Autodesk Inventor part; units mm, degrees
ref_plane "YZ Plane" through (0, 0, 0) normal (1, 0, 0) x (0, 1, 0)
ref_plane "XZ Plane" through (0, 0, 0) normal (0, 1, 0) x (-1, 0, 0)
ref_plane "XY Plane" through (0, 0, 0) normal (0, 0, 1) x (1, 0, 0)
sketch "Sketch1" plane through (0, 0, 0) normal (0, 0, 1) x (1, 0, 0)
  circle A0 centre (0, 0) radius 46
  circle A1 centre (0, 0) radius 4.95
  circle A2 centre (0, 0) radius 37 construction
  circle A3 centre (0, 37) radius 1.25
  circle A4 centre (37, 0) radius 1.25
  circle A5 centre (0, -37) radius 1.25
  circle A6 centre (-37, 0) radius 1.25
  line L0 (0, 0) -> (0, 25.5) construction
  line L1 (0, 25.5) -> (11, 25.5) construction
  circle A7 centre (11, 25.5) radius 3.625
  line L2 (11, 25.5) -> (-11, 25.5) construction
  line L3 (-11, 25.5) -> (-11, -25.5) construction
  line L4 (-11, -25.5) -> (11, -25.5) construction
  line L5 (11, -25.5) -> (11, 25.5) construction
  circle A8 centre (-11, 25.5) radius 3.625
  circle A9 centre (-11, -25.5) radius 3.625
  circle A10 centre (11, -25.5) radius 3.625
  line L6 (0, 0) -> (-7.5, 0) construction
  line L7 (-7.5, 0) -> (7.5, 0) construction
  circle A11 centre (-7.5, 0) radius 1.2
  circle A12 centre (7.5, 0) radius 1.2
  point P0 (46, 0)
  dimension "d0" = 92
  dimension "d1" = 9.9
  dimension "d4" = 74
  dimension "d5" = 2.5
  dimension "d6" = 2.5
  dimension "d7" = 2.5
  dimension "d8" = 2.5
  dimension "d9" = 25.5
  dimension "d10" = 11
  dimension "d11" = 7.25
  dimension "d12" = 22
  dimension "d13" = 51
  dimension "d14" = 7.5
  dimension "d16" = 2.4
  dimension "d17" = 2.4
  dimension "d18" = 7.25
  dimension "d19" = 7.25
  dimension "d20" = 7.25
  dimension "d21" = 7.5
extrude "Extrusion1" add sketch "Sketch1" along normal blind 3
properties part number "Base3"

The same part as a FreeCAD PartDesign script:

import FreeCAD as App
import Part
import Sketcher
from FreeCAD import Vector

doc = App.newDocument("Part")
body = doc.addObject("PartDesign::Body", "Body")

# Sketch on XY plane
sketch1 = doc.addObject("Sketcher::SketchObject", "Sketch")
body.addObject(sketch1)
sketch1.AttachmentSupport = (doc.XY_Plane, [""])
sketch1.MapMode = "FlatFace"
sketch1.addGeometry(Part.Circle(Vector(0, 0, 0), Vector(0, 0, 1), 46), False)
sketch1.addGeometry(Part.Circle(Vector(-11, -25.5, 0), Vector(0, 0, 1), 3.625), False)
sketch1.addGeometry(Part.Circle(Vector(0, -37, 0), Vector(0, 0, 1), 1.25), False)
sketch1.addGeometry(Part.Circle(Vector(11, -25.5, 0), Vector(0, 0, 1), 3.625), False)
sketch1.addGeometry(Part.Circle(Vector(-37, 0, 0), Vector(0, 0, 1), 1.25), False)
sketch1.addGeometry(Part.Circle(Vector(-7.5, 0, 0), Vector(0, 0, 1), 1.2), False)
sketch1.addGeometry(Part.Circle(Vector(-11, 25.5, 0), Vector(0, 0, 1), 3.625), False)
sketch1.addGeometry(Part.Circle(Vector(0, 0, 0), Vector(0, 0, 1), 4.95), False)
sketch1.addGeometry(Part.Circle(Vector(7.5, 0, 0), Vector(0, 0, 1), 1.2), False)
sketch1.addGeometry(Part.Circle(Vector(37, 0, 0), Vector(0, 0, 1), 1.25), False)
sketch1.addGeometry(Part.Circle(Vector(11, 25.5, 0), Vector(0, 0, 1), 3.625), False)
sketch1.addGeometry(Part.Circle(Vector(0, 37, 0), Vector(0, 0, 1), 1.25), False)
sketch1.addConstraint(Sketcher.Constraint("Coincident", 0, 3, -1, 1))
sketch1.addConstraint(Sketcher.Constraint("Coincident", 7, 3, -1, 1))
sketch1.addConstraint(Sketcher.Constraint("Equal", 1, 3))
sketch1.addConstraint(Sketcher.Constraint("Equal", 2, 4))
sketch1.addConstraint(Sketcher.Constraint("Equal", 3, 6))
sketch1.addConstraint(Sketcher.Constraint("Equal", 5, 8))
sketch1.addConstraint(Sketcher.Constraint("Equal", 4, 9))
sketch1.addConstraint(Sketcher.Constraint("Equal", 6, 10))
sketch1.addConstraint(Sketcher.Constraint("Equal", 9, 11))
sketch1.addConstraint(Sketcher.Constraint("Symmetric", 3, 3, 6, 3, -1, 1))
sketch1.addConstraint(Sketcher.Constraint("Symmetric", 5, 3, 8, 3, -1, 1))
sketch1.addConstraint(Sketcher.Constraint("Symmetric", 4, 3, 9, 3, -1, 1))
sketch1.addConstraint(Sketcher.Constraint("Symmetric", 1, 3, 10, 3, -1, 1))
sketch1.addConstraint(Sketcher.Constraint("Symmetric", 2, 3, 11, 3, -1, 1))
sketch1.addConstraint(Sketcher.Constraint("Symmetric", 1, 3, 3, 3, -2))
sketch1.addConstraint(Sketcher.Constraint("PointOnObject", 2, 3, -2))
sketch1.addConstraint(Sketcher.Constraint("PointOnObject", 4, 3, -1))
sketch1.addConstraint(Sketcher.Constraint("PointOnObject", 5, 3, -1))
sketch1.addConstraint(Sketcher.Constraint("Diameter", 0, 92.0))
sketch1.addConstraint(Sketcher.Constraint("Diameter", 2, 2.5))
sketch1.addConstraint(Sketcher.Constraint("Diameter", 5, 2.4))
sketch1.addConstraint(Sketcher.Constraint("Diameter", 7, 9.9))
sketch1.addConstraint(Sketcher.Constraint("Diameter", 1, 7.25))
sketch1.addConstraint(Sketcher.Constraint("DistanceX", 1, 3, -1, 1, 11.0))
sketch1.addConstraint(Sketcher.Constraint("DistanceY", 1, 3, 6, 3, 51.0))
sketch1.addConstraint(Sketcher.Constraint("DistanceX", 5, 3, -1, 1, 7.5))
sketch1.addConstraint(Sketcher.Constraint("DistanceY", 2, 3, -1, 1, 37.0))
sketch1.addConstraint(Sketcher.Constraint("DistanceX", 4, 3, -1, 1, 37.0))
pad1 = doc.addObject("PartDesign::Pad", "Pad")
body.addObject(pad1)
pad1.Profile = sketch1
pad1.Length = 3

doc.recompute()
